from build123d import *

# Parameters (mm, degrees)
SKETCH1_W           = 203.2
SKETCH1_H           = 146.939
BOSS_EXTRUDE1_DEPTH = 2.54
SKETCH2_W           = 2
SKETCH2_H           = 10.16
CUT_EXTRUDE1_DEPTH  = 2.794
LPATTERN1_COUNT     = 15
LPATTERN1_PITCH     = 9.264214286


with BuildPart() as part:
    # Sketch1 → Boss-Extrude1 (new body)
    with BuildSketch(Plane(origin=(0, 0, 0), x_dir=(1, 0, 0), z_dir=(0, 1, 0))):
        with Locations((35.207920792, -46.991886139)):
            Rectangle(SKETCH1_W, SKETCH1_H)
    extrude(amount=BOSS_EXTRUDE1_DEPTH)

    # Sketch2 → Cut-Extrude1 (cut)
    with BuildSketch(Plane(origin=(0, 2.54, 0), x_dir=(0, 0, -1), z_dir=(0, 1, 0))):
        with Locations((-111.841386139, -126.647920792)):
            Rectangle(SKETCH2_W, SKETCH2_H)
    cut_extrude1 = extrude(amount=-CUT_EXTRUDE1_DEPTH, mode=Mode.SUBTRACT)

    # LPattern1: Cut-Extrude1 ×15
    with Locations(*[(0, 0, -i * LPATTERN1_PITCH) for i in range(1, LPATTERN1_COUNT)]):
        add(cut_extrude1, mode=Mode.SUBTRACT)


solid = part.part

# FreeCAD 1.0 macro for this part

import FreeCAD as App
import Part
import Sketcher
from FreeCAD import Vector
Q = App.Units.Quantity


def add_polygon(sketch, points):
    """Adds a closed chain of lines whose ends are joined by coincident constraints."""
    first, n = sketch.GeometryCount, len(points)
    for a, b in zip(points, points[1:] + points[:1]):
        sketch.addGeometry(Part.LineSegment(App.Vector(*a, 0), App.Vector(*b, 0)), False)
    for i in range(n):
        sketch.addConstraint(Sketcher.Constraint("Coincident", first + i, 2, first + (i + 1) % n, 1))

doc = App.newDocument("Part")
body = doc.addObject("PartDesign::Body", "Body")

sketch1 = body.newObject("Sketcher::SketchObject", "Sketch")
sketch1.AttachmentSupport = (doc.getObject("XZ_Plane"), [""])
sketch1.MapMode = "FlatFace"
add_polygon(sketch1, [(-66, -26), (-66, 120), (137, 120), (137, -26)])
sketch1.addConstraint([
    Sketcher.Constraint("Vertical", 0),
    Sketcher.Constraint("Horizontal", 1),
    Sketcher.Constraint("Vertical", 2),
    Sketcher.Constraint("Horizontal", 3),
    Sketcher.Constraint("DistanceX", 1, 1, 1, 2, Q("8 in")),
    Sketcher.Constraint("DistanceY", 0, 1, 0, 2, Q("5.785 in")),
    Sketcher.Constraint("DistanceX", 0, 2, -1, 1, 66.392079),
    Sketcher.Constraint("DistanceY", -1, 1, 0, 2, 120.461386),
])
pad1 = body.newObject("PartDesign::Pad", "Pad")
pad1.Profile = sketch1
pad1.Length = Q("0.1 in")
pad1.Reversed = True

sketch2 = body.newObject("Sketcher::SketchObject", "Sketch001")
sketch2.AttachmentSupport = (doc.getObject("XZ_Plane"), [""])
sketch2.MapMode = "FlatFace"
sketch2.AttachmentOffset = App.Placement(Vector(0, 0, -0.1 * 25.4), App.Rotation())
add_polygon(sketch2, [(121.6, 112.8), (131.7, 112.8), (131.7, 110.8), (121.6, 110.8)])
sketch2.addConstraint([
    Sketcher.Constraint("Horizontal", 0),
    Sketcher.Constraint("Vertical", 1),
    Sketcher.Constraint("Horizontal", 2),
    Sketcher.Constraint("Vertical", 3),
    Sketcher.Constraint("DistanceX", 0, 1, 0, 2, Q("0.4 in")),
    Sketcher.Constraint("DistanceY", 1, 2, 1, 1, 2.0),
    Sketcher.Constraint("DistanceX", -1, 1, 0, 2, 131.727921),
    Sketcher.Constraint("DistanceY", -1, 1, 0, 2, 112.841386),
])
pocket1 = body.newObject("PartDesign::Pocket", "Pocket")
pocket1.Profile = sketch2
pocket1.Length = Q("0.11 in")
pocket1.Reversed = True
doc.recompute()

linearpattern = body.newObject("PartDesign::LinearPattern", "LinearPattern")
linearpattern.Originals = [pocket1]
linearpattern.Direction = (doc.getObject("Z_Axis"), [""])
linearpattern.Mode = "offset"
linearpattern.Offset = 9.264214
linearpattern.Occurrences = 15
linearpattern.Reversed = True
body.Tip = linearpattern

doc.recompute()
